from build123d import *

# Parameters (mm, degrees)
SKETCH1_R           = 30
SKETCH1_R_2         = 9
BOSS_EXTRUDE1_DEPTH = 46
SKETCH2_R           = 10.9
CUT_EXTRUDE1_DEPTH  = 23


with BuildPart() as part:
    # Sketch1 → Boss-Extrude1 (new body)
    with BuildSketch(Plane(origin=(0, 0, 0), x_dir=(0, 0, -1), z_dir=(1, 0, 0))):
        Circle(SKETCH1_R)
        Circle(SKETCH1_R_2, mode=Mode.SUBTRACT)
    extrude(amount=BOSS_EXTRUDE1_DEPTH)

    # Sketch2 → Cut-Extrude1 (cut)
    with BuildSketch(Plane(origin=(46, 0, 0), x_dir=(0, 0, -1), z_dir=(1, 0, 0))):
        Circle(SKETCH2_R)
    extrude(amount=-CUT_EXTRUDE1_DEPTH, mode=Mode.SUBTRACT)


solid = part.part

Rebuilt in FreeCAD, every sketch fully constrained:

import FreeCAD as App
import Part
import Sketcher
from FreeCAD import Vector
Q = App.Units.Quantity

doc = App.newDocument("Part")
params = doc.addObject("Spreadsheet::Sheet", "Params")
for row, (alias, value) in enumerate([
    ("sketch1_diameter", "60 mm"),
    ("sketch1_diameter2", "18 mm"),
    ("pad1_length", "46 mm"),
    ("sketch2_diameter", "21.8 mm"),
    ("pocket1_length", "23 mm"),
], start=1):
    params.set(f"A{row}", alias)
    params.set(f"B{row}", "=" + value)
    params.setAlias(f"B{row}", alias)

body = doc.addObject("PartDesign::Body", "Body")

# Sketch on YZ plane
sketch1 = body.newObject("Sketcher::SketchObject", "Sketch")
sketch1.AttachmentSupport = (doc.getObject("YZ_Plane"), [""])
sketch1.MapMode = "FlatFace"
sketch1.addGeometry([
    Part.Circle(Vector(0, 0, 0), Vector(0, 0, 1), 30),
    Part.Circle(Vector(0, 0, 0), Vector(0, 0, 1), 9),
], False)
sketch1.addConstraint([
    Sketcher.Constraint("Coincident", 0, 3, -1, 1),
    Sketcher.Constraint("Coincident", 1, 3, -1, 1),
    Sketcher.Constraint("Diameter", 0, Q("60 mm")),
    Sketcher.Constraint("Diameter", 1, Q("18 mm")),
])
sketch1.setExpression("Constraints[2]", "Params.sketch1_diameter")
sketch1.setExpression("Constraints[3]", "Params.sketch1_diameter2")
pad1 = body.newObject("PartDesign::Pad", "Pad")
pad1.Profile = sketch1
pad1.setExpression("Length", "Params.pad1_length")

# Sketch on YZ plane
sketch2 = body.newObject("Sketcher::SketchObject", "Sketch001")
sketch2.AttachmentSupport = (doc.getObject("YZ_Plane"), [""])
sketch2.MapMode = "FlatFace"
sketch2.AttachmentOffset = App.Placement(Vector(0, 0, 46), App.Rotation())
sketch2.addGeometry(Part.Circle(Vector(0, 0, 0), Vector(0, 0, 1), 11), False)
sketch2.addConstraint([
    Sketcher.Constraint("Coincident", 0, 3, -1, 1),
    Sketcher.Constraint("Diameter", 0, Q("21.8 mm")),
])
sketch2.setExpression("Constraints[1]", "Params.sketch2_diameter")
pocket1 = body.newObject("PartDesign::Pocket", "Pocket")
pocket1.Profile = sketch2
pocket1.setExpression("Length", "Params.pocket1_length")

doc.recompute()
